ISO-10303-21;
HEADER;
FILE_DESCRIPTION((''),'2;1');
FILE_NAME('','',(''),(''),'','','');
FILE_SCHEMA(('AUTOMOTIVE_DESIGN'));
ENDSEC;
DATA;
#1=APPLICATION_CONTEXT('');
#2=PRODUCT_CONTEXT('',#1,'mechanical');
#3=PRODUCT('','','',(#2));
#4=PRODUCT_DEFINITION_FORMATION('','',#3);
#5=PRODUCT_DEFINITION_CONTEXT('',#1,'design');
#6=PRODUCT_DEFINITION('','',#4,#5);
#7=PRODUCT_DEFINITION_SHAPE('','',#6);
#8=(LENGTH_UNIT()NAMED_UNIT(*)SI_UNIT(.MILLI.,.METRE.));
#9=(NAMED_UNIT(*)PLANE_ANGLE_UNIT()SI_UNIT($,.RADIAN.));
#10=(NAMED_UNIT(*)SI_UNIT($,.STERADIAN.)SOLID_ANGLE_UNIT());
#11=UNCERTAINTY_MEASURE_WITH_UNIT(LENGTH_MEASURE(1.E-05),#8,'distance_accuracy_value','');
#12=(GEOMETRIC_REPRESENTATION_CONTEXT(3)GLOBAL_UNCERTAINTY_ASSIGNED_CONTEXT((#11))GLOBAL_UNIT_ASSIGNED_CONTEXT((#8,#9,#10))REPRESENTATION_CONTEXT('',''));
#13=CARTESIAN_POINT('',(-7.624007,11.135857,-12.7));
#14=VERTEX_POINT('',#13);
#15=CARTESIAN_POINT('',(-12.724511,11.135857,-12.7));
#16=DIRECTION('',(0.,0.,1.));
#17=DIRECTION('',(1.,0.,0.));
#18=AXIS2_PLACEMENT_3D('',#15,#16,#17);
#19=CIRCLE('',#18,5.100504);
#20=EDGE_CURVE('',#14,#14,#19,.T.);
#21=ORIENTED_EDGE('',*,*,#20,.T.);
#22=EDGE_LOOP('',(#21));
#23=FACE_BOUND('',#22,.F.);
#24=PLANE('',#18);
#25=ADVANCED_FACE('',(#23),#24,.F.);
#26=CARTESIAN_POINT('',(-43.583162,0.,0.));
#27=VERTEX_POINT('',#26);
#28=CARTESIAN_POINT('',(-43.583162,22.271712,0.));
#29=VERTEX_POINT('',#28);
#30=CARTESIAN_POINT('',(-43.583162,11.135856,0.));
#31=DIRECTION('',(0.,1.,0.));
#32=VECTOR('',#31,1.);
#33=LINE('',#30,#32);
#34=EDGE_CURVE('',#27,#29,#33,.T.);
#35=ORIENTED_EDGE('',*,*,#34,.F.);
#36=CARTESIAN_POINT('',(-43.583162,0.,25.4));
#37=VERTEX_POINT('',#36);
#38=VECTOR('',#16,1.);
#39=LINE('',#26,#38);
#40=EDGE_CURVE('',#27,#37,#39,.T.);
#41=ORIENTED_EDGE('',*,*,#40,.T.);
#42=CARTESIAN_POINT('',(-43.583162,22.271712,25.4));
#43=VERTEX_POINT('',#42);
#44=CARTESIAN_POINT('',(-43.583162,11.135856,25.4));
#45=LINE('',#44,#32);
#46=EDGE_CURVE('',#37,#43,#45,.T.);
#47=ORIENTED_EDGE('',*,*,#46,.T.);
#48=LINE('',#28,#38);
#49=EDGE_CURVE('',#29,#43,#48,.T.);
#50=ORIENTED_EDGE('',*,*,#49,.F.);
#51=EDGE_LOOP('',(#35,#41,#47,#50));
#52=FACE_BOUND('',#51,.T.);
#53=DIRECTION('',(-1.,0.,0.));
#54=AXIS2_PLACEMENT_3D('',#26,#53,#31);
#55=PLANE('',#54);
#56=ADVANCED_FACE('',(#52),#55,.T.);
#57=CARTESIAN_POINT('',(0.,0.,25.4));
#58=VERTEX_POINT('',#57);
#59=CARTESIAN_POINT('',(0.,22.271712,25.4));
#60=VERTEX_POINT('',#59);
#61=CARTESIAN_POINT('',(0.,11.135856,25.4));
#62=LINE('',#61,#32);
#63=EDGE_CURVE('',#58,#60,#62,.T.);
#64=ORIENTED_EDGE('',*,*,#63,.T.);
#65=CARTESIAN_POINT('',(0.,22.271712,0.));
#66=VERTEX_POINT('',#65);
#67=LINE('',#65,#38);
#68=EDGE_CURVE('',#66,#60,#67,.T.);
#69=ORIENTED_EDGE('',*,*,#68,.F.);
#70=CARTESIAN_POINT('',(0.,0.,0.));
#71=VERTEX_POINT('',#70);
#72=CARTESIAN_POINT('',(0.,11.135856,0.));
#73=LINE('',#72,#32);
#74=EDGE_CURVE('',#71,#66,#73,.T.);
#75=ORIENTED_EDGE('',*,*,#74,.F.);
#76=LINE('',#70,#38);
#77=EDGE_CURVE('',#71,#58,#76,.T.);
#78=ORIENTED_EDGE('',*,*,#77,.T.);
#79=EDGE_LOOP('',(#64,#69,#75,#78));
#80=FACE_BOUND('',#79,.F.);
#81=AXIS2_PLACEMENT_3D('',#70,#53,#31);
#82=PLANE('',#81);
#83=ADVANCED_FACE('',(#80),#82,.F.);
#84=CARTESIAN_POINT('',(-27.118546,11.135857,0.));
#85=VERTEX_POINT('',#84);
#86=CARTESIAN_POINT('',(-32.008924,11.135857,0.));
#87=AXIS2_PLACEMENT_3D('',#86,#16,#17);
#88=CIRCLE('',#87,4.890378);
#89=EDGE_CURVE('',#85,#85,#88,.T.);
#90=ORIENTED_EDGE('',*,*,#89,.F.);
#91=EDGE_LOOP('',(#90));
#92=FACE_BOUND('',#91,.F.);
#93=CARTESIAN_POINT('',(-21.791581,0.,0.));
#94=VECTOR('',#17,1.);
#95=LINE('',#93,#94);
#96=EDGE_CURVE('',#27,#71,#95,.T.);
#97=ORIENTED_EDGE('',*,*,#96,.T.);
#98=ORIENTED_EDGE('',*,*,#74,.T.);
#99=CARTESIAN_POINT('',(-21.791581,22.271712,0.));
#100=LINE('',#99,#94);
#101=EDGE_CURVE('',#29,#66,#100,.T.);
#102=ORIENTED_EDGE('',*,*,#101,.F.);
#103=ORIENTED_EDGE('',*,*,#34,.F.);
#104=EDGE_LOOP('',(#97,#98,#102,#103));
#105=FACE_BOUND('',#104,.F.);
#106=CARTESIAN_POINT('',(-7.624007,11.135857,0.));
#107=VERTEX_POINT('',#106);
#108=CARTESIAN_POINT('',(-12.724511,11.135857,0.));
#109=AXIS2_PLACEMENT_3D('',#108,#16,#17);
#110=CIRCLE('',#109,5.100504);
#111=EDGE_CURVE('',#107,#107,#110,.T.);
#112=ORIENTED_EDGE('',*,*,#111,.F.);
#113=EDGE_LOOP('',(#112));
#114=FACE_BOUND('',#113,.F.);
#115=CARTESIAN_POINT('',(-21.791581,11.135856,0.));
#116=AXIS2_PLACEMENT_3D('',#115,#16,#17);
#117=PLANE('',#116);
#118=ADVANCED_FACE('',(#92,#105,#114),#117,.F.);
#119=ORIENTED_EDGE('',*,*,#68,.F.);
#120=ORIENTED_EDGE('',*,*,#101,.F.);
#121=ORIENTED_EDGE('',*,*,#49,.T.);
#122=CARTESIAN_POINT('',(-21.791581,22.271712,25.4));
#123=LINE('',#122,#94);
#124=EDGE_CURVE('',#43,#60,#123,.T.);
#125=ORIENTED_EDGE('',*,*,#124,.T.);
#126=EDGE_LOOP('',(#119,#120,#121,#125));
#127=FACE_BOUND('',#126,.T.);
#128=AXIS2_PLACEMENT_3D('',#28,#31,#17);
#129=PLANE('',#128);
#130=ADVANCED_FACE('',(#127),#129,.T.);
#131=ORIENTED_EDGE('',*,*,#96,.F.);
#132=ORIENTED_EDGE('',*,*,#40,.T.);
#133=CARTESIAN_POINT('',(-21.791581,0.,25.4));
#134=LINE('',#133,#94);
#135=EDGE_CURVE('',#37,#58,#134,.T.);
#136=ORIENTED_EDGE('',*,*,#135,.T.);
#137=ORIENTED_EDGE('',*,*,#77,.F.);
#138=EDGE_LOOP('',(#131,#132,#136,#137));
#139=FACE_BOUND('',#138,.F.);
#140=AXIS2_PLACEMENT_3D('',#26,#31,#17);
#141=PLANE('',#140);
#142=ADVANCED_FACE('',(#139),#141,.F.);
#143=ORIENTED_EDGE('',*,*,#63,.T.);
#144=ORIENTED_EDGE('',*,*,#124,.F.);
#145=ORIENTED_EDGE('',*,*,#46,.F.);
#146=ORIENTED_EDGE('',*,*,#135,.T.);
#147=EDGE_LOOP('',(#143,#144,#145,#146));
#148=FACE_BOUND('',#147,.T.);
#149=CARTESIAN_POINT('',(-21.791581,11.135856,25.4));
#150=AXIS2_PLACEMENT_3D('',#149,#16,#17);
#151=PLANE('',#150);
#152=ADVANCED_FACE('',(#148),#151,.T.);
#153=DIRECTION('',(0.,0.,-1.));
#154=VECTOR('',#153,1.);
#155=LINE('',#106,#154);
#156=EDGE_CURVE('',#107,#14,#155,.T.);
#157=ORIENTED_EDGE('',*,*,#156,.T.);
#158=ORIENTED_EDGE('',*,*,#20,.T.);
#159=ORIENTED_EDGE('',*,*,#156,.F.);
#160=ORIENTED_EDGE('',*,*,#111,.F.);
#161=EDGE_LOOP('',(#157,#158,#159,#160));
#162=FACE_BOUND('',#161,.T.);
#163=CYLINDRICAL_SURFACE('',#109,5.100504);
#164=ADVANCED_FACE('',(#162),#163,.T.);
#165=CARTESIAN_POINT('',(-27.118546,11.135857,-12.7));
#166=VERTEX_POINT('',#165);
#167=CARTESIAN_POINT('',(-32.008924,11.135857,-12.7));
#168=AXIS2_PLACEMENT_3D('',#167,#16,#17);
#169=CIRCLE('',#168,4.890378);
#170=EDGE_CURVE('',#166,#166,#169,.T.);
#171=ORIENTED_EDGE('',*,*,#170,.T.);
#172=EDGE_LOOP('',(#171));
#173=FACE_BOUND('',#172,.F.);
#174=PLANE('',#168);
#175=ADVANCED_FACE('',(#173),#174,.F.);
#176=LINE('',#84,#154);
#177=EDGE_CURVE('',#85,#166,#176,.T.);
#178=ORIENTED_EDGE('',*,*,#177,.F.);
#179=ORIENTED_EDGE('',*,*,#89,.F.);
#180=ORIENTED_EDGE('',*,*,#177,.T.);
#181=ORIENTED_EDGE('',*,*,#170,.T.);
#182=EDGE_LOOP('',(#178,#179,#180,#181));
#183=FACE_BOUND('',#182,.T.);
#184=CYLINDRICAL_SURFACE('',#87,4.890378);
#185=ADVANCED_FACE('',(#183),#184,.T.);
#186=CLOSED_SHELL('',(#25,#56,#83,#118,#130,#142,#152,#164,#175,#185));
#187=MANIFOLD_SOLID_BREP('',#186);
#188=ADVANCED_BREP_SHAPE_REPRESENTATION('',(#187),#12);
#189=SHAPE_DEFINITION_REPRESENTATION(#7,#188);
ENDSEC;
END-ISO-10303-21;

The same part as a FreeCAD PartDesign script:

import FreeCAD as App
import Part
import Sketcher
from FreeCAD import Vector
Q = App.Units.Quantity

doc = App.newDocument("Part")
body = doc.addObject("PartDesign::Body", "Body")

# Sketch on XY plane
sketch1 = body.newObject("Sketcher::SketchObject", "Sketch")
sketch1.AttachmentSupport = (doc.getObject("XY_Plane"), [""])
sketch1.MapMode = "FlatFace"
sketch1.addGeometry([
    Part.LineSegment(Vector(-43.583162, 22.271712, 0), Vector(-43.583162, 0, 0)),
    Part.LineSegment(Vector(-43.583162, 0, 0), Vector(0, 0, 0)),
    Part.LineSegment(Vector(0, 0, 0), Vector(0, 22.271712, 0)),
    Part.LineSegment(Vector(0, 22.271712, 0), Vector(-43.583162, 22.271712, 0)),
], False)
sketch1.addConstraint([
    Sketcher.Constraint("Coincident", 0, 2, 1, 1),
    Sketcher.Constraint("Coincident", 1, 2, 2, 1),
    Sketcher.Constraint("Coincident", 2, 2, 3, 1),
    Sketcher.Constraint("Coincident", 3, 2, 0, 1),
    Sketcher.Constraint("Vertical", 0),
    Sketcher.Constraint("Horizontal", 1),
    Sketcher.Constraint("Vertical", 2),
    Sketcher.Constraint("Horizontal", 3),
    Sketcher.Constraint("Coincident", 1, 2, -1, 1),
    Sketcher.Constraint("DistanceX", 1, 1, 1, 2, Q("43.583162 mm")),
    Sketcher.Constraint("DistanceY", 0, 2, 0, 1, Q("22.271713 mm")),
])
pad1 = body.newObject("PartDesign::Pad", "Pad")
pad1.Profile = sketch1
pad1.Length = Q("1 in")

# Sketch on XY plane
sketch2 = body.newObject("Sketcher::SketchObject", "Sketch001")
sketch2.AttachmentSupport = (doc.getObject("XY_Plane"), [""])
sketch2.MapMode = "FlatFace"
sketch2.addGeometry([
    Part.Circle(Vector(-32.008924, 11.135857, 0), Vector(0, 0, 1), 4.890378),
    Part.Circle(Vector(-12.724511, 11.135857, 0), Vector(0, 0, 1), 5.100504),
], False)
sketch2.addConstraint([
    Sketcher.Constraint("Horizontal", 0, 3, 1, 3),
    Sketcher.Constraint("Diameter", 0, Q("9.780756 mm")),
    Sketcher.Constraint("Diameter", 1, Q("10.201008 mm")),
    Sketcher.Constraint("DistanceX", 1, 3, -1, 1, Q("12.724511 mm")),
    Sketcher.Constraint("DistanceX", 0, 3, -1, 1, Q("32.008924 mm")),
    Sketcher.Constraint("DistanceY", -1, 1, 0, 3, Q("11.135857 mm")),
])
pad2 = body.newObject("PartDesign::Pad", "Pad001")
pad2.Profile = sketch2
pad2.Length = Q("0.5 in")
pad2.Reversed = True

doc.recompute()
